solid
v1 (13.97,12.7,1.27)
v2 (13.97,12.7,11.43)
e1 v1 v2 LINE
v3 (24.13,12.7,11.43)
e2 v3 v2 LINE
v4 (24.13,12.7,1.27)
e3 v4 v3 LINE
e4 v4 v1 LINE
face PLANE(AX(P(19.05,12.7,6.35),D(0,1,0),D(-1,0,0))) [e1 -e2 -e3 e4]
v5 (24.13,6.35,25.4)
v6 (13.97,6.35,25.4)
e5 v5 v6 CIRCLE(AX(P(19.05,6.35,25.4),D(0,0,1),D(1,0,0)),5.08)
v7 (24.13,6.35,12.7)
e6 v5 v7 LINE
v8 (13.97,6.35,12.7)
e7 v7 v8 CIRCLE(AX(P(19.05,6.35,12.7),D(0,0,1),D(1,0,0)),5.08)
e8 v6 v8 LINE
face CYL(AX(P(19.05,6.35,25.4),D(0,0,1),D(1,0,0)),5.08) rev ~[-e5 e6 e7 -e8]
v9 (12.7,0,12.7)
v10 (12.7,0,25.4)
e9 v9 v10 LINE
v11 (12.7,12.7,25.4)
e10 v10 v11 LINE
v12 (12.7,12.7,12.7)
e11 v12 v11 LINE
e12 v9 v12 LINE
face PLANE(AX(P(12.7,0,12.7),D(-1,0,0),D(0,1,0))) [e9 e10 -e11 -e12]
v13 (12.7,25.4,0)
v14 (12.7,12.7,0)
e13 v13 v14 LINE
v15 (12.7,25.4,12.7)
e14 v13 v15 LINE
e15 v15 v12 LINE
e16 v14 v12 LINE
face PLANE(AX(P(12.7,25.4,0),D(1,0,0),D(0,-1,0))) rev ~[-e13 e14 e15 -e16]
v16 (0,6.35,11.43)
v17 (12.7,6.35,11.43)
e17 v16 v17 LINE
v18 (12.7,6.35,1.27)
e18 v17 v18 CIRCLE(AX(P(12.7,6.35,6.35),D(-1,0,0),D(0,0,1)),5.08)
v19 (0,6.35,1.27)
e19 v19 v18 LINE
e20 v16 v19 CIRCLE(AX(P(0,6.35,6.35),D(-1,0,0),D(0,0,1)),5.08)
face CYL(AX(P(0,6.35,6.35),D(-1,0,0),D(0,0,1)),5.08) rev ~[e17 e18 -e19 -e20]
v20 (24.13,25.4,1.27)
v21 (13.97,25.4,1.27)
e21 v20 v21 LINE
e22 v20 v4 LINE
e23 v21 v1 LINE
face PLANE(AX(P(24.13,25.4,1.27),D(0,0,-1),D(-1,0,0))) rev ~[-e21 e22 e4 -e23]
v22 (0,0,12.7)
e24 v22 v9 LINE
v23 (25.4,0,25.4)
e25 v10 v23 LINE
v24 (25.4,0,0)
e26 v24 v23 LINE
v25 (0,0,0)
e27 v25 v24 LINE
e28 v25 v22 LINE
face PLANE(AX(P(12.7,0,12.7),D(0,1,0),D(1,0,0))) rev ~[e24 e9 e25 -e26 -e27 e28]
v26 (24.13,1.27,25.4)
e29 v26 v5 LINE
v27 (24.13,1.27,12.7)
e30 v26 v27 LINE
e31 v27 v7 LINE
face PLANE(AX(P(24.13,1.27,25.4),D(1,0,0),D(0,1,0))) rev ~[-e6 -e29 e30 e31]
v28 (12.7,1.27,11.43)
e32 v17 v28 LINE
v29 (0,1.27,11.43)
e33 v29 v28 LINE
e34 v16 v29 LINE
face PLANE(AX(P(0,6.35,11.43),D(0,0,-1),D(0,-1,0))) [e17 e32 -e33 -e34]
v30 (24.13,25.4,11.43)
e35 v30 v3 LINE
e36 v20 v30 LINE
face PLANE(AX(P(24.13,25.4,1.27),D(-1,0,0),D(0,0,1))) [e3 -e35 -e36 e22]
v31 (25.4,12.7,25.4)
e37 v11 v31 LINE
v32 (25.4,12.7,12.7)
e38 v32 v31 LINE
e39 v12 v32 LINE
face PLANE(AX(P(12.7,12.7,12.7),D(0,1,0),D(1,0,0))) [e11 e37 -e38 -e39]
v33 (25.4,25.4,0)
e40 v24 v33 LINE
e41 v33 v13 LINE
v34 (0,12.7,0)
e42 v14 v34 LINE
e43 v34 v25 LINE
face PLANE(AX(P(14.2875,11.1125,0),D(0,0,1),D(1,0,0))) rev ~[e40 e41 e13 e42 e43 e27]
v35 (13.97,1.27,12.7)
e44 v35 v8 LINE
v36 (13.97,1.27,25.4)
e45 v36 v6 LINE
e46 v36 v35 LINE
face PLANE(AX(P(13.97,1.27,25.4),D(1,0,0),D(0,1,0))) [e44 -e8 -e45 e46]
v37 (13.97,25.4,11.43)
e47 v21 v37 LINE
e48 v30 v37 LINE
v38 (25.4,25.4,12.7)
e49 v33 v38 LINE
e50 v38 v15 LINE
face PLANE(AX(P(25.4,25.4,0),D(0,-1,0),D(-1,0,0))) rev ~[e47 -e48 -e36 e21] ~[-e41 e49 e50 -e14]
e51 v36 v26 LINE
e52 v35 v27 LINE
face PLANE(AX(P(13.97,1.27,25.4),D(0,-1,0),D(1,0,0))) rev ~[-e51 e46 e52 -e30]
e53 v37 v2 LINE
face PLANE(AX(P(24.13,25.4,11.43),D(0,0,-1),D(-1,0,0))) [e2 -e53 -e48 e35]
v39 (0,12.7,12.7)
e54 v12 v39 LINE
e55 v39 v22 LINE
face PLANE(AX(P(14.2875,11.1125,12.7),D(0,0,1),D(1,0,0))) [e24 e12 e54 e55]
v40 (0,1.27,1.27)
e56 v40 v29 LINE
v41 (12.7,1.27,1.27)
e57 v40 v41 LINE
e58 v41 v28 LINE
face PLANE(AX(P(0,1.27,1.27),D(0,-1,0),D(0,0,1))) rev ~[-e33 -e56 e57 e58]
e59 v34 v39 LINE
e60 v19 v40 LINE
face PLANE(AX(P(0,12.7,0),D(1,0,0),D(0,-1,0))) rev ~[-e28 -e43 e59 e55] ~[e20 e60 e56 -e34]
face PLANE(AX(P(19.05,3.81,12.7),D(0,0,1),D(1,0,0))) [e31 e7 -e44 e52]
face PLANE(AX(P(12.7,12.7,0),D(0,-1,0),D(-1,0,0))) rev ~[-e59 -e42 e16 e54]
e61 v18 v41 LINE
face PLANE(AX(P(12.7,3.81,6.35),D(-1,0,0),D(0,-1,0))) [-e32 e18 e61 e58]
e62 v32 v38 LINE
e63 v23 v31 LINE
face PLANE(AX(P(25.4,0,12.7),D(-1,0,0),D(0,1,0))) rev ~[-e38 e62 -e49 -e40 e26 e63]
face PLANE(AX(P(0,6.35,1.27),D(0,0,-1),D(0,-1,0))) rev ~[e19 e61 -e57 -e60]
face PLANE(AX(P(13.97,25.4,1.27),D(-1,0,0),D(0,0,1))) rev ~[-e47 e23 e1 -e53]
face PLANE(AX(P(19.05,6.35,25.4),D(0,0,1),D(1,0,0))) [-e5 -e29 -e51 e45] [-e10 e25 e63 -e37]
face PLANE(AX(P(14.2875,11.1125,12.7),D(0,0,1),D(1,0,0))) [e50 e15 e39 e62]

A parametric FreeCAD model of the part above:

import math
import FreeCAD as App
import Part
import Sketcher

V = App.Vector
Q = App.Units.Quantity


def add_polygon(sketch, points):
    """Adds a closed chain of lines whose ends are joined by coincident constraints."""
    first, n = sketch.GeometryCount, len(points)
    for a, b in zip(points, points[1:] + points[:1]):
        sketch.addGeometry(Part.LineSegment(App.Vector(*a, 0), App.Vector(*b, 0)), False)
    for i in range(n):
        sketch.addConstraint(Sketcher.Constraint("Coincident", first + i, 2, first + (i + 1) % n, 1))

doc = App.newDocument("Part")
body = doc.addObject("PartDesign::Body", "Body")

# Sketch on XY plane
sketch1 = doc.addObject("Sketcher::SketchObject", "Sketch")
body.addObject(sketch1)
sketch1.AttachmentSupport = (doc.XY_Plane, [""])
sketch1.MapMode = "FlatFace"
add_polygon(sketch1, [(0, 13), (0, 0), (25, 0), (25, 25), (13, 25), (13, 13)])  # lines 0-5
sketch1.addConstraint([
    Sketcher.Constraint("Vertical", 0),
    Sketcher.Constraint("Horizontal", 1),
    Sketcher.Constraint("Vertical", 2),
    Sketcher.Constraint("Horizontal", 3),
    Sketcher.Constraint("Vertical", 4),
    Sketcher.Constraint("Horizontal", 5),
    Sketcher.Constraint("Coincident", 0, 2, -1, 1),
    Sketcher.Constraint("Equal", 3, 5),
    Sketcher.Constraint("Equal", 5, 0),
    Sketcher.Constraint("Equal", 1, 2),
    Sketcher.Constraint("DistanceX", 1, 1, 1, 2, Q("1 in")),
])
pad1 = doc.addObject("PartDesign::Pad", "Pad")
body.addObject(pad1)
pad1.Profile = sketch1
pad1.Length = Q("0.5 in")

# Sketch on XY plane
sketch2 = doc.addObject("Sketcher::SketchObject", "Sketch001")
body.addObject(sketch2)
sketch2.AttachmentSupport = (doc.XY_Plane, [""])
sketch2.MapMode = "FlatFace"
sketch2.AttachmentOffset = App.Placement(V(0, 0, 0.5 * 25.4), App.Rotation())
add_polygon(sketch2, [(13, 13), (13, 0), (25, 0), (25, 13)])  # lines 0-3
sketch2.addConstraint([
    Sketcher.Constraint("Vertical", 0),
    Sketcher.Constraint("Horizontal", 1),
    Sketcher.Constraint("Vertical", 2),
    Sketcher.Constraint("Horizontal", 3),
    Sketcher.Constraint("PointOnObject", 0, 2, -1),
    Sketcher.Constraint("Equal", 3, 0),
    Sketcher.Constraint("DistanceX", 1, 1, 1, 2, Q("0.5 in")),
    Sketcher.Constraint("DistanceX", -1, 1, 1, 2, Q("1 in")),
])
pad2 = doc.addObject("PartDesign::Pad", "Pad001")
body.addObject(pad2)
pad2.Profile = sketch2
pad2.Length = Q("0.5 in")

# Sketch on XY plane
sketch3 = doc.addObject("Sketcher::SketchObject", "Sketch002")
body.addObject(sketch3)
sketch3.AttachmentSupport = (doc.XY_Plane, [""])
sketch3.MapMode = "FlatFace"
sketch3.AttachmentOffset = App.Placement(V(0, 0, 1 * 25.4), App.Rotation())
sketch3.addGeometry([
    Part.LineSegment(V(14, 6, 0), V(14, 1, 0)),
    Part.LineSegment(V(14, 1, 0), V(24, 1, 0)),
    Part.LineSegment(V(24, 1, 0), V(24, 6, 0)),
    Part.ArcOfCircle(Part.Circle(V(19, 6, 0), V(0, 0, 1), 5), math.radians(0), math.radians(180)),
], False)
sketch3.addConstraint([
    Sketcher.Constraint("Coincident", 0, 2, 1, 1),
    Sketcher.Constraint("Coincident", 1, 2, 2, 1),
    Sketcher.Constraint("Tangent", 2, 2, 3, 1),
    Sketcher.Constraint("Tangent", 3, 2, 0, 1),
    Sketcher.Constraint("Vertical", 0),
    Sketcher.Constraint("Horizontal", 1),
    Sketcher.Constraint("Vertical", 2),
    Sketcher.Constraint("Radius", 3, Q("0.2 in")),
    Sketcher.Constraint("DistanceY", 0, 2, 0, 1, Q("0.2 in")),
    Sketcher.Constraint("DistanceX", -1, 1, 3, 3, Q("0.75 in")),
    Sketcher.Constraint("DistanceY", -1, 1, 3, 3, Q("0.25 in")),
])
pocket1 = doc.addObject("PartDesign::Pocket", "Pocket")
body.addObject(pocket1)
pocket1.Profile = sketch3
pocket1.Length = Q("0.5 in")

# Sketch on YZ plane
sketch4 = doc.addObject("Sketcher::SketchObject", "Sketch003")
body.addObject(sketch4)
sketch4.AttachmentSupport = (doc.YZ_Plane, [""])
sketch4.MapMode = "FlatFace"
sketch4.addGeometry([
    Part.LineSegment(V(6, 1, 0), V(1, 1, 0)),
    Part.LineSegment(V(1, 1, 0), V(1, 11, 0)),
    Part.LineSegment(V(1, 11, 0), V(6, 11, 0)),
    Part.ArcOfCircle(Part.Circle(V(6, 6, 0), V(0, 0, 1), 5), math.radians(-90), math.radians(90)),
], False)
sketch4.addConstraint([
    Sketcher.Constraint("Coincident", 0, 2, 1, 1),
    Sketcher.Constraint("Coincident", 1, 2, 2, 1),
    Sketcher.Constraint("Tangent", 2, 2, 3, 2),
    Sketcher.Constraint("Tangent", 3, 1, 0, 1),
    Sketcher.Constraint("Horizontal", 0),
    Sketcher.Constraint("Vertical", 1),
    Sketcher.Constraint("Horizontal", 2),
    Sketcher.Constraint("Radius", 3, Q("0.2 in")),
    Sketcher.Constraint("DistanceX", 0, 2, 0, 1, Q("0.2 in")),
    Sketcher.Constraint("DistanceX", -1, 1, 3, 3, Q("0.25 in")),
    Sketcher.Constraint("DistanceY", -1, 1, 3, 3, Q("0.25 in")),
])
pocket2 = doc.addObject("PartDesign::Pocket", "Pocket001")
body.addObject(pocket2)
pocket2.Profile = sketch4
pocket2.Length = Q("0.5 in")
pocket2.Reversed = True

# Sketch on XZ plane
sketch5 = doc.addObject("Sketcher::SketchObject", "Sketch004")
body.addObject(sketch5)
sketch5.AttachmentSupport = (doc.XZ_Plane, [""])
sketch5.MapMode = "FlatFace"
sketch5.AttachmentOffset = App.Placement(V(0, 0, -1 * 25.4), App.Rotation())
add_polygon(sketch5, [(24, 11), (24, 1), (14, 1), (14, 11)])  # lines 0-3
sketch5.addConstraint([
    Sketcher.Constraint("Vertical", 0),
    Sketcher.Constraint("Horizontal", 1),
    Sketcher.Constraint("Vertical", 2),
    Sketcher.Constraint("Horizontal", 3),
    Sketcher.Constraint("Equal", 3, 0),
    Sketcher.Constraint("DistanceX", 1, 2, 1, 1, Q("0.4 in")),
    Sketcher.Constraint("DistanceX", -1, 1, 0, 2, Q("0.95 in")),
    Sketcher.Constraint("DistanceY", -1, 1, 0, 2, Q("0.05 in")),
])
pocket3 = doc.addObject("PartDesign::Pocket", "Pocket002")
body.addObject(pocket3)
pocket3.Profile = sketch5
pocket3.Length = Q("0.5 in")
pocket3.Reversed = True

doc.recompute()
